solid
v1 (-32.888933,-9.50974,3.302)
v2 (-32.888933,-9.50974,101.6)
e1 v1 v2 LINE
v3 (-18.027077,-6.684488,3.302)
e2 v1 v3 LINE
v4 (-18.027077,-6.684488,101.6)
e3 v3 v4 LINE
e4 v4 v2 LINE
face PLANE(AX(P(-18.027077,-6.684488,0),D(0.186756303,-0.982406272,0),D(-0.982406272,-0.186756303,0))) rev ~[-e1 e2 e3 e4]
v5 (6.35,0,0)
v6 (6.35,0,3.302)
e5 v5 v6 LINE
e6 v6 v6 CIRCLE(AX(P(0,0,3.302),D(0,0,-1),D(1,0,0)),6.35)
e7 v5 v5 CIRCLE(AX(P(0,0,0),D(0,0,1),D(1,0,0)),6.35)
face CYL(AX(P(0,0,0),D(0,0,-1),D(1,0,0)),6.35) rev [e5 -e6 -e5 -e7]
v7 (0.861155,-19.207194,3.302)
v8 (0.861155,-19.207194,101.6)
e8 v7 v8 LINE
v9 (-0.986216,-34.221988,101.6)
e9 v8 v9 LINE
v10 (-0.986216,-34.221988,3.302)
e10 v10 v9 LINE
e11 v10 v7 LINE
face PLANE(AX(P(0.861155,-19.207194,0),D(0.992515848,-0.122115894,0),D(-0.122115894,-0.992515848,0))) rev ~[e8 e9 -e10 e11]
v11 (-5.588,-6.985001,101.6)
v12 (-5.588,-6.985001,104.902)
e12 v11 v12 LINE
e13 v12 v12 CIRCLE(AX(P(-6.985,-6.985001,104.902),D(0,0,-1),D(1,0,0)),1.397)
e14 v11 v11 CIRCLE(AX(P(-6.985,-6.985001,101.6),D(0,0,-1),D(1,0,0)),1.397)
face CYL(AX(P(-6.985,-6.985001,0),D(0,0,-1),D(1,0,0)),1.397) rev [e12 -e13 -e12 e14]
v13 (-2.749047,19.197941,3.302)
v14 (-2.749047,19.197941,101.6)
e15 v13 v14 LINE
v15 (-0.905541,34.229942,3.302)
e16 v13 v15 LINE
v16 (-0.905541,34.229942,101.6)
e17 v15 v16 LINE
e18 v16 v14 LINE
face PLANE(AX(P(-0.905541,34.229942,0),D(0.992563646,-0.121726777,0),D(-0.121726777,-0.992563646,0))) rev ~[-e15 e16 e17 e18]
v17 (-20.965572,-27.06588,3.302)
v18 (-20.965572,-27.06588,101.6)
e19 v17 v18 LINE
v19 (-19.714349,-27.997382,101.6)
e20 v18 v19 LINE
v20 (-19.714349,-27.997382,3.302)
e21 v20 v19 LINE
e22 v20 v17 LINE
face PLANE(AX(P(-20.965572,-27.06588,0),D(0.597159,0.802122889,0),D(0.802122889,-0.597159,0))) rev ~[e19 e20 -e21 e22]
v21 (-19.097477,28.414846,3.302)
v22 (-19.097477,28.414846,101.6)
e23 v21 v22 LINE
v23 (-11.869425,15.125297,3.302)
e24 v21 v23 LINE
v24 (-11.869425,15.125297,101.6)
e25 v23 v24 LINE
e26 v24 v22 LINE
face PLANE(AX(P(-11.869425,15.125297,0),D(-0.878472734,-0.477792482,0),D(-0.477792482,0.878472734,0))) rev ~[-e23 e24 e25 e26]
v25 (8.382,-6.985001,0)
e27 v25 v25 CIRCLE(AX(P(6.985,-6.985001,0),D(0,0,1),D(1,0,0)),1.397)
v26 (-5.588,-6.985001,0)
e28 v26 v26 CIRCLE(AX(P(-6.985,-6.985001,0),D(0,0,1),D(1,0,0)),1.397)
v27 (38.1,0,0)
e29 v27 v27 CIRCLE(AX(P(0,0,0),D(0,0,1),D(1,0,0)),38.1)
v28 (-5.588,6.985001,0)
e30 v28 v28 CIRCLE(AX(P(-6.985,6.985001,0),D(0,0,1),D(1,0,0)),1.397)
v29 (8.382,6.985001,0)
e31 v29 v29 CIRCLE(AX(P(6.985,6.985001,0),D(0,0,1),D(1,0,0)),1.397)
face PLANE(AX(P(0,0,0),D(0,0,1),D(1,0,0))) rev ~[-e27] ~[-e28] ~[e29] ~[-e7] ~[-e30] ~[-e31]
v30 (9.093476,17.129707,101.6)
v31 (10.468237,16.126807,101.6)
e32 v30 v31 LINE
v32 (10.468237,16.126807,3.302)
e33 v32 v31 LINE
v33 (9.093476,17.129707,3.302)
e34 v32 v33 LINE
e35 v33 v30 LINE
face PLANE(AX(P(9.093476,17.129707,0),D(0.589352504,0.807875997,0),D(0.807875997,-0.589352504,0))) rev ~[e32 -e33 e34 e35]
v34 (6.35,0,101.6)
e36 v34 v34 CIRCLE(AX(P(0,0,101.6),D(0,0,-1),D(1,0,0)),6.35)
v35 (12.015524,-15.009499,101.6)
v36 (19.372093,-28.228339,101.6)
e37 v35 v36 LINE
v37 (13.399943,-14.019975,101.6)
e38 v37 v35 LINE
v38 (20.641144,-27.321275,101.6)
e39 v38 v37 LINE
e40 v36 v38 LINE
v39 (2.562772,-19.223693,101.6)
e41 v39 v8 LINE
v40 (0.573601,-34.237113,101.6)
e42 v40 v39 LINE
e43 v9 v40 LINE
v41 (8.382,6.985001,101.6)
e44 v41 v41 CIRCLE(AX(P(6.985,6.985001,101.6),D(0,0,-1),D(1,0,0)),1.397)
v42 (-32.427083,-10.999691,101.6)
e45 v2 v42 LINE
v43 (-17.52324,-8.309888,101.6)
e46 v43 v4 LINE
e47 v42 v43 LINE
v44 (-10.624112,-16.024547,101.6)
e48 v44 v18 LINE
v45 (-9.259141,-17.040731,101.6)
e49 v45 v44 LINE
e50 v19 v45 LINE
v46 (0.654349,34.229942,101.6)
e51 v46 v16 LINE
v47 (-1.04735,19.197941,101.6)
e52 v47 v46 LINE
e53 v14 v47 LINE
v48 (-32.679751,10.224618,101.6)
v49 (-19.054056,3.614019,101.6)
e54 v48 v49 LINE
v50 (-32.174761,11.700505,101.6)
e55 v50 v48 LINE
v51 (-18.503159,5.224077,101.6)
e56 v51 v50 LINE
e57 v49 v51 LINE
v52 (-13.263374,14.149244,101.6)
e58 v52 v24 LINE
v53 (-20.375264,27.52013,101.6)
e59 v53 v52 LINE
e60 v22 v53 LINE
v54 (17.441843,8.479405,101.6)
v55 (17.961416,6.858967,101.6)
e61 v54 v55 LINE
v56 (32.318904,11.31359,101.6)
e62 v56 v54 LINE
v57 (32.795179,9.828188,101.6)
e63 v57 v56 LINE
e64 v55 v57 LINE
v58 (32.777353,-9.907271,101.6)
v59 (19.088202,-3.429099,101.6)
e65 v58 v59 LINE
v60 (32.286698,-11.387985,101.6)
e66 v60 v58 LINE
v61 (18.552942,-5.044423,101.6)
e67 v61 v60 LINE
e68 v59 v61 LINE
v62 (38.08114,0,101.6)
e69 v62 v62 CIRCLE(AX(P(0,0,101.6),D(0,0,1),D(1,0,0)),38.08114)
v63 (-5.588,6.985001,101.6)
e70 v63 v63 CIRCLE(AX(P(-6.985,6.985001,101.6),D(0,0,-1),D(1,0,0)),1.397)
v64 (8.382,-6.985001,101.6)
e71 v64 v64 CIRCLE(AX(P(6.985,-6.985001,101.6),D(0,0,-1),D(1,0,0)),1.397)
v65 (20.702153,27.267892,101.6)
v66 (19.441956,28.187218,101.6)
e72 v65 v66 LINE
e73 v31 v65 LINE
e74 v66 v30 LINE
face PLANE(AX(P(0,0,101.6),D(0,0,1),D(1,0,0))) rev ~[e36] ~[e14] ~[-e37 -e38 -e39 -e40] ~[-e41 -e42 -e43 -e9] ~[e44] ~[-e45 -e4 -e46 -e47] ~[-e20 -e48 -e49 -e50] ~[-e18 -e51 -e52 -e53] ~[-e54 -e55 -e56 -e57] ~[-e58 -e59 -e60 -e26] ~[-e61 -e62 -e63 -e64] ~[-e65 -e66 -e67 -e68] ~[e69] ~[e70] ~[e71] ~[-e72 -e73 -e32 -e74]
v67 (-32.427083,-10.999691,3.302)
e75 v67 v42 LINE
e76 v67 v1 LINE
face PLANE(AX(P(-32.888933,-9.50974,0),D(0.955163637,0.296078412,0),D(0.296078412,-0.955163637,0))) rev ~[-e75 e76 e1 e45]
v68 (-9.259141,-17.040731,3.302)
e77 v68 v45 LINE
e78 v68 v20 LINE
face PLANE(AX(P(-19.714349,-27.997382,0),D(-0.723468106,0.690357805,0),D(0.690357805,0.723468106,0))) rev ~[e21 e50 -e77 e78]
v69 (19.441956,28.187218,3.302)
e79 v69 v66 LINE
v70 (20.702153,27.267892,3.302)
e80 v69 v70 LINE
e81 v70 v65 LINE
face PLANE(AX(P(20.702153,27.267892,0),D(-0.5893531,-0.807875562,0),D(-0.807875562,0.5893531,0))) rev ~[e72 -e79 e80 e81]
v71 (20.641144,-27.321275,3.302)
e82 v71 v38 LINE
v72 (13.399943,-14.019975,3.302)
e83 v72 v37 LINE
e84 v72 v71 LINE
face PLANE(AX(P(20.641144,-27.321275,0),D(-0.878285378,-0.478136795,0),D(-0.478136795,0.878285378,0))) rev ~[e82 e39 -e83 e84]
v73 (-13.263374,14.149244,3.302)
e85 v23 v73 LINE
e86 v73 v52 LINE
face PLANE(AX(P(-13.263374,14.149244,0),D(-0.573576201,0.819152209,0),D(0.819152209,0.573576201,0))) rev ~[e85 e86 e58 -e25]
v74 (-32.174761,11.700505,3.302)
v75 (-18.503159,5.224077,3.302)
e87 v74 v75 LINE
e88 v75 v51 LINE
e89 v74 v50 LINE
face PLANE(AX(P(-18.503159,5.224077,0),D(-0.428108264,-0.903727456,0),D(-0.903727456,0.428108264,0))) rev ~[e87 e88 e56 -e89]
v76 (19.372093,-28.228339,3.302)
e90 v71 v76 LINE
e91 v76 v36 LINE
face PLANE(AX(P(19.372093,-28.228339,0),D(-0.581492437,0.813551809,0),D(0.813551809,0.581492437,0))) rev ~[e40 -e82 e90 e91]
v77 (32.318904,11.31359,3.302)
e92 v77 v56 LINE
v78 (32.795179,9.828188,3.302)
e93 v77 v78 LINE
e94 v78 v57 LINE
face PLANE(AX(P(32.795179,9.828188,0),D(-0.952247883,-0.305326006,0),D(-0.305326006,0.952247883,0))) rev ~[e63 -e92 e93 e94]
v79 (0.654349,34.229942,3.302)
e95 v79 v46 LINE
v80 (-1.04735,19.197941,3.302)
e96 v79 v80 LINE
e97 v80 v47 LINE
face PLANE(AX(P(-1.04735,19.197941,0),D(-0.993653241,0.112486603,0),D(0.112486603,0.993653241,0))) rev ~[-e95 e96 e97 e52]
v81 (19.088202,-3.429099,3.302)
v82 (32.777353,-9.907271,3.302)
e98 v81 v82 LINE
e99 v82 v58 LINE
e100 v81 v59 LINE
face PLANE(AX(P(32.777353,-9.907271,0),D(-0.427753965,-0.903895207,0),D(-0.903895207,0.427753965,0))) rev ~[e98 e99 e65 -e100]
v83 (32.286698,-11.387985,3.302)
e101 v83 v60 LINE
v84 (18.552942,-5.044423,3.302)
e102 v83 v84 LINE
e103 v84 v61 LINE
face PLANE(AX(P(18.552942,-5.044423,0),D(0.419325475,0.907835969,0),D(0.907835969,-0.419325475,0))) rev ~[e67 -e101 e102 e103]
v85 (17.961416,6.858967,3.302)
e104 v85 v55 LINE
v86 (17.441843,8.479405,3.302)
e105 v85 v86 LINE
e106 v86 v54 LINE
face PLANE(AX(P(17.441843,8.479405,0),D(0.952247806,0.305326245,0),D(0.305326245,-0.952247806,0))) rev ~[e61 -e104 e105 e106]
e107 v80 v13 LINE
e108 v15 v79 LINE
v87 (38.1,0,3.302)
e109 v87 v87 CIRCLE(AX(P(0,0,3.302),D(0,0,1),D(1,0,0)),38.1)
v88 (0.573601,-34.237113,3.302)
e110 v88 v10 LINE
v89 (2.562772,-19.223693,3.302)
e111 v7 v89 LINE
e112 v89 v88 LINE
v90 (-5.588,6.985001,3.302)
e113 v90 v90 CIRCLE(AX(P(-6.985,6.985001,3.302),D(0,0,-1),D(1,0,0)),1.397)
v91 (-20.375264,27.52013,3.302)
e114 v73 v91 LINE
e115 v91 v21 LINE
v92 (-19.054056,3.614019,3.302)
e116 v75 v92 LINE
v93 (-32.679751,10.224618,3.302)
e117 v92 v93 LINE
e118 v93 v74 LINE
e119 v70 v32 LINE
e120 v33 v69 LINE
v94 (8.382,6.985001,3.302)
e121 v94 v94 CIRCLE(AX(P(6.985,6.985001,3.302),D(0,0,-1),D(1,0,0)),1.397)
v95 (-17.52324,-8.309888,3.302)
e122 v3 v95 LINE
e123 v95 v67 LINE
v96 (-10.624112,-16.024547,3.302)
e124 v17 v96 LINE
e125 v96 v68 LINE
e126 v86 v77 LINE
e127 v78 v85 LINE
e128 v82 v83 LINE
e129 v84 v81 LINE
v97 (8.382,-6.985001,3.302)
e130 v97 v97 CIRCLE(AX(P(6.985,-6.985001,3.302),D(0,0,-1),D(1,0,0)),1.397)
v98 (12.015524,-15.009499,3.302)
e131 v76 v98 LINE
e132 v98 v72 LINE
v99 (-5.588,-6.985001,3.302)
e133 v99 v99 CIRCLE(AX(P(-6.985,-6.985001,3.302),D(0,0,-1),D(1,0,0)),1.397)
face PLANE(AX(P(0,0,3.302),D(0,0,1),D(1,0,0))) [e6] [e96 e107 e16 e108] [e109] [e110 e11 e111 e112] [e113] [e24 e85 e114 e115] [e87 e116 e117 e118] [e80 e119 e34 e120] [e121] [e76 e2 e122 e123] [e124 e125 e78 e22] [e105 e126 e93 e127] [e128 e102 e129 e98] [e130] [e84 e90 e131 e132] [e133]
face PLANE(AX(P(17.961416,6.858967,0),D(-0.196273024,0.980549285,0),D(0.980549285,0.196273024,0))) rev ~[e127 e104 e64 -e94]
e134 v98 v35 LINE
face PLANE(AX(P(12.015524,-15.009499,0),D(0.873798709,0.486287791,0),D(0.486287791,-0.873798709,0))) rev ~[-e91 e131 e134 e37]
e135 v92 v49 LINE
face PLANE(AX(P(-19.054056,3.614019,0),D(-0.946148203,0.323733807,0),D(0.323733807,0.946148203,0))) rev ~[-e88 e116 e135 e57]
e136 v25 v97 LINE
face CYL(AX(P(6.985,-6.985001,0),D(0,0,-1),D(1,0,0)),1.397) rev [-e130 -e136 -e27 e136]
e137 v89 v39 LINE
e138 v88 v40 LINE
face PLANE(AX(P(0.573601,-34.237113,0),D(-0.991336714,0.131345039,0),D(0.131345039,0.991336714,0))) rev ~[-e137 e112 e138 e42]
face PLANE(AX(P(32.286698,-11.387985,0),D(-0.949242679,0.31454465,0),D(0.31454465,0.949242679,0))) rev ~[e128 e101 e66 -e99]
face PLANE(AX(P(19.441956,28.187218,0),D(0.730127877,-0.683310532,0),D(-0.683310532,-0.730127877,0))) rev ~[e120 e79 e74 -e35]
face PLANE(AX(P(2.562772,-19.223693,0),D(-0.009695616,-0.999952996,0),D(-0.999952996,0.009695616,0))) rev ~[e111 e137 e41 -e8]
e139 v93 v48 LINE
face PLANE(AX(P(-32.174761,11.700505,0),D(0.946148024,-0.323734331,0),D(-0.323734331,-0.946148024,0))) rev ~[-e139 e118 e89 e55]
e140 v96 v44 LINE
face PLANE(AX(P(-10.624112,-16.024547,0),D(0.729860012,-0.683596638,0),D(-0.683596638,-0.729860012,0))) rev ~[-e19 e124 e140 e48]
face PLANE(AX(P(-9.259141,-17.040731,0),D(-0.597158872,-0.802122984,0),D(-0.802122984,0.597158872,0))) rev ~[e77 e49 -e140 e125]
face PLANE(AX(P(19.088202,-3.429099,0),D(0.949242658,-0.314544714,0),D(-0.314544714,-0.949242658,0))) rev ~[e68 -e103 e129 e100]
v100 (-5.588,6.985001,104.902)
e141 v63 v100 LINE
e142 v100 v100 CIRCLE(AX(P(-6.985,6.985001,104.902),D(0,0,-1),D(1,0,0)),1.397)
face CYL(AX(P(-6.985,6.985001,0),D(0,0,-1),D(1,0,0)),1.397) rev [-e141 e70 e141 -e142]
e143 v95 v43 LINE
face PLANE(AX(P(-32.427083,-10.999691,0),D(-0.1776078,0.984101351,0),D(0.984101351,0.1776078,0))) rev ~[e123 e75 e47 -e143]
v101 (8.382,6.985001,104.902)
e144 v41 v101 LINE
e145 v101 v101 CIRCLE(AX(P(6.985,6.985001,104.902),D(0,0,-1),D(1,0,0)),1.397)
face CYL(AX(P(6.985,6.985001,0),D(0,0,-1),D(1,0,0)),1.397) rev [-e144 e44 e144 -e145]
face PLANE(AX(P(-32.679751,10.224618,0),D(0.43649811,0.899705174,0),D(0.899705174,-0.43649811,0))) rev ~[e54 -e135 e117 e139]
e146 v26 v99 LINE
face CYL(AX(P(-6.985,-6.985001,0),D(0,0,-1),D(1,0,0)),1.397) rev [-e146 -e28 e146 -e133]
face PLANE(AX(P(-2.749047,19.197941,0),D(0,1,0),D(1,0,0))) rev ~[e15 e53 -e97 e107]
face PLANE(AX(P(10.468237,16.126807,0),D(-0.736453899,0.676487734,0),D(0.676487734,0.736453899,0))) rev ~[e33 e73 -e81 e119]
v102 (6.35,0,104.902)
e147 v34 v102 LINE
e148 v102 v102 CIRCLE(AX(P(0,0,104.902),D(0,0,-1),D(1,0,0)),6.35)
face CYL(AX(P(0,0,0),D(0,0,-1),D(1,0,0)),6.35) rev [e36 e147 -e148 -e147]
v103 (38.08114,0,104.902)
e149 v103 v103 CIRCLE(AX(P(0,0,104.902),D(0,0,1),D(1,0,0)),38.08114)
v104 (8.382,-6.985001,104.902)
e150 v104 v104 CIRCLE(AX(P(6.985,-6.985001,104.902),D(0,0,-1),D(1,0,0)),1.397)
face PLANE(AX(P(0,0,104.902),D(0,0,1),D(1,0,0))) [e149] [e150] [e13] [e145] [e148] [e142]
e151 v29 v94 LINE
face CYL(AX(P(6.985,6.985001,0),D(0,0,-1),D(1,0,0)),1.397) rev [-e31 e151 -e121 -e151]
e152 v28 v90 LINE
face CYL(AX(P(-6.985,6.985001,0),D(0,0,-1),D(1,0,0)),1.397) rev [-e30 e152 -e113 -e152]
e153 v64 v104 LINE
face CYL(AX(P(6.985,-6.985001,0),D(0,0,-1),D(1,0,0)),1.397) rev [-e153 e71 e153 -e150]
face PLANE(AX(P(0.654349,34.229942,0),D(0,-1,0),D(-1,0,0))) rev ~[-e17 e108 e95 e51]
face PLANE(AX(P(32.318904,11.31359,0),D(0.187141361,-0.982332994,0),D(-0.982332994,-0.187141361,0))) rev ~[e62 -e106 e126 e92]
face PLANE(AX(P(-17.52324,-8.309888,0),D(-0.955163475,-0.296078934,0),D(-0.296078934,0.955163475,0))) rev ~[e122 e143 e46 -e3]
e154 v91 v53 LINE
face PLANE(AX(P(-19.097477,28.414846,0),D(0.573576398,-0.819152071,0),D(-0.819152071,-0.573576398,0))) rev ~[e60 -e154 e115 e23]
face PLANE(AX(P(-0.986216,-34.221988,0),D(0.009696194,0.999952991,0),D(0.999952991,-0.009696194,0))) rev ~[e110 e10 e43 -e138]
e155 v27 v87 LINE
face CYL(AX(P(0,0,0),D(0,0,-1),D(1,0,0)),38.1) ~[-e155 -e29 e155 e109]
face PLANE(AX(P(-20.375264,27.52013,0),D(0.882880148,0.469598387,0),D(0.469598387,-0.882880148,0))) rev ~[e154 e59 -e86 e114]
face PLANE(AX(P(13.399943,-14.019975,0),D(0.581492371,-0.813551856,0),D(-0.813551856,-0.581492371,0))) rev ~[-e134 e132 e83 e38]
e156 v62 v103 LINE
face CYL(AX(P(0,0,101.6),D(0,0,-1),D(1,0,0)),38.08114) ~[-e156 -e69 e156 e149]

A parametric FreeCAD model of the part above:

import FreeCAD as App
import Part
import Sketcher

V = App.Vector
Q = App.Units.Quantity

doc = App.newDocument("Part")
body = doc.addObject("PartDesign::Body", "Body")

# Sketch on XY plane
sketch1 = body.newObject("Sketcher::SketchObject", "Sketch")
sketch1.AttachmentSupport = (doc.getObject("XY_Plane"), [""])
sketch1.MapMode = "FlatFace"
sketch1.addGeometry([
    Part.Circle(V(0, 0, 0), V(0, 0, 1), 38.1),  # 0
    Part.LineSegment(V(-9.259141, -17.040731, 0), V(-19.714349, -27.997382, 0)),  # 1
    Part.LineSegment(V(-19.714349, -27.997382, 0), V(-20.965572, -27.06588, 0)),  # 2
    Part.LineSegment(V(-20.965572, -27.06588, 0), V(-10.624112, -16.024547, 0)),  # 3
    Part.LineSegment(V(-10.624112, -16.024547, 0), V(-9.259141, -17.040731, 0)),  # 4
    Part.LineSegment(V(-17.52324, -8.309888, 0), V(-32.427083, -10.999691, 0)),  # 5
    Part.LineSegment(V(-32.427083, -10.999691, 0), V(-32.888933, -9.50974, 0)),  # 6
    Part.LineSegment(V(-32.888933, -9.50974, 0), V(-18.027077, -6.684488, 0)),  # 7
    Part.LineSegment(V(-18.027077, -6.684488, 0), V(-17.52324, -8.309888, 0)),  # 8
    Part.LineSegment(V(2.562772, -19.223693, 0), V(0.573601, -34.237113, 0)),  # 9
    Part.LineSegment(V(0.573601, -34.237113, 0), V(-0.986216, -34.221988, 0)),  # 10
    Part.LineSegment(V(-0.986216, -34.221988, 0), V(0.861155, -19.207194, 0)),  # 11
    Part.LineSegment(V(0.861155, -19.207194, 0), V(2.562772, -19.223693, 0)),  # 12
    Part.LineSegment(V(13.399943, -14.019975, 0), V(20.641144, -27.321275, 0)),  # 13
    Part.LineSegment(V(20.641144, -27.321275, 0), V(19.372093, -28.228339, 0)),  # 14
    Part.LineSegment(V(19.372093, -28.228339, 0), V(12.015524, -15.009499, 0)),  # 15
    Part.LineSegment(V(12.015524, -15.009499, 0), V(13.399943, -14.019975, 0)),  # 16
    Part.LineSegment(V(19.088202, -3.429099, 0), V(32.777353, -9.907271, 0)),  # 17
    Part.LineSegment(V(32.777353, -9.907271, 0), V(32.286698, -11.387985, 0)),  # 18
    Part.LineSegment(V(32.286698, -11.387985, 0), V(18.552942, -5.044423, 0)),  # 19
    Part.LineSegment(V(18.552942, -5.044423, 0), V(19.088202, -3.429099, 0)),  # 20
    Part.LineSegment(V(-19.054056, 3.614019, 0), V(-32.679751, 10.224618, 0)),  # 21
    Part.LineSegment(V(-32.679751, 10.224618, 0), V(-32.174761, 11.700505, 0)),  # 22
    Part.LineSegment(V(-32.174761, 11.700505, 0), V(-18.503159, 5.224077, 0)),  # 23
    Part.LineSegment(V(-18.503159, 5.224077, 0), V(-19.054056, 3.614019, 0)),  # 24
    Part.LineSegment(V(-13.263374, 14.149244, 0), V(-20.375264, 27.52013, 0)),  # 25
    Part.LineSegment(V(-20.375264, 27.52013, 0), V(-19.097477, 28.414846, 0)),  # 26
    Part.LineSegment(V(-19.097477, 28.414846, 0), V(-11.869425, 15.125297, 0)),  # 27
    Part.LineSegment(V(-11.869425, 15.125297, 0), V(-13.263374, 14.149244, 0)),  # 28
    Part.LineSegment(V(-1.04735, 19.197941, 0), V(-2.749047, 19.197941, 0)),  # 29
    Part.LineSegment(V(-2.749047, 19.197941, 0), V(-0.905541, 34.229942, 0)),  # 30
    Part.LineSegment(V(-0.905541, 34.229942, 0), V(0.654349, 34.229942, 0)),  # 31
    Part.LineSegment(V(0.654349, 34.229942, 0), V(-1.04735, 19.197941, 0)),  # 32
    Part.Circle(V(0, 0, 0), V(0, 0, 1), 3.175),  # 33
    Part.LineSegment(V(17.441843, 8.479405, 0), V(32.318904, 11.31359, 0)),  # 34
    Part.LineSegment(V(32.318904, 11.31359, 0), V(32.795179, 9.828188, 0)),  # 35
    Part.LineSegment(V(32.795179, 9.828188, 0), V(17.961416, 6.858967, 0)),  # 36
    Part.LineSegment(V(17.961416, 6.858967, 0), V(17.441843, 8.479405, 0)),  # 37
    Part.LineSegment(V(9.093476, 17.129707, 0), V(19.441956, 28.187218, 0)),  # 38
    Part.LineSegment(V(19.441956, 28.187218, 0), V(20.702153, 27.267892, 0)),  # 39
    Part.LineSegment(V(20.702153, 27.267892, 0), V(10.468237, 16.126807, 0)),  # 40
    Part.LineSegment(V(10.468237, 16.126807, 0), V(9.093476, 17.129707, 0)),  # 41
], False)
sketch1.addConstraint([
    Sketcher.Constraint("Coincident", 1, 2, 2, 1),
    Sketcher.Constraint("Coincident", 2, 2, 3, 1),
    Sketcher.Constraint("Coincident", 3, 2, 4, 1),
    Sketcher.Constraint("Coincident", 4, 2, 1, 1),
    Sketcher.Constraint("Coincident", 5, 2, 6, 1),
    Sketcher.Constraint("Coincident", 6, 2, 7, 1),
    Sketcher.Constraint("Coincident", 7, 2, 8, 1),
    Sketcher.Constraint("Coincident", 8, 2, 5, 1),
    Sketcher.Constraint("Coincident", 9, 2, 10, 1),
    Sketcher.Constraint("Coincident", 10, 2, 11, 1),
    Sketcher.Constraint("Coincident", 11, 2, 12, 1),
    Sketcher.Constraint("Coincident", 12, 2, 9, 1),
    Sketcher.Constraint("Coincident", 13, 2, 14, 1),
    Sketcher.Constraint("Coincident", 14, 2, 15, 1),
    Sketcher.Constraint("Coincident", 15, 2, 16, 1),
    Sketcher.Constraint("Coincident", 16, 2, 13, 1),
    Sketcher.Constraint("Coincident", 17, 2, 18, 1),
    Sketcher.Constraint("Coincident", 18, 2, 19, 1),
    Sketcher.Constraint("Coincident", 19, 2, 20, 1),
    Sketcher.Constraint("Coincident", 20, 2, 17, 1),
    Sketcher.Constraint("Coincident", 21, 2, 22, 1),
    Sketcher.Constraint("Coincident", 22, 2, 23, 1),
    Sketcher.Constraint("Coincident", 23, 2, 24, 1),
    Sketcher.Constraint("Coincident", 24, 2, 21, 1),
    Sketcher.Constraint("Coincident", 25, 2, 26, 1),
    Sketcher.Constraint("Coincident", 26, 2, 27, 1),
    Sketcher.Constraint("Coincident", 27, 2, 28, 1),
    Sketcher.Constraint("Coincident", 28, 2, 25, 1),
    Sketcher.Constraint("Coincident", 29, 2, 30, 1),
    Sketcher.Constraint("Coincident", 30, 2, 31, 1),
    Sketcher.Constraint("Coincident", 31, 2, 32, 1),
    Sketcher.Constraint("Coincident", 32, 2, 29, 1),
    Sketcher.Constraint("Coincident", 34, 2, 35, 1),
    Sketcher.Constraint("Coincident", 35, 2, 36, 1),
    Sketcher.Constraint("Coincident", 36, 2, 37, 1),
    Sketcher.Constraint("Coincident", 37, 2, 34, 1),
    Sketcher.Constraint("Coincident", 38, 2, 39, 1),
    Sketcher.Constraint("Coincident", 39, 2, 40, 1),
    Sketcher.Constraint("Coincident", 40, 2, 41, 1),
    Sketcher.Constraint("Coincident", 41, 2, 38, 1),
    Sketcher.Constraint("Horizontal", 29),
    Sketcher.Constraint("Horizontal", 31),
    Sketcher.Constraint("Coincident", 0, 3, -1, 1),
    Sketcher.Constraint("Coincident", 33, 3, -1, 1),
    Sketcher.Constraint("Diameter", 0, Q("3 in")),
    Sketcher.Constraint("Diameter", 33, Q("0.25 in")),
    Sketcher.Constraint("DistanceX", 27, 2, -1, 1, Q("0.4673002 in")),
    Sketcher.Constraint("DistanceY", 24, 2, 27, 2, Q("0.4531999 in")),
    Sketcher.Constraint("Distance", 8, 1.701698),
    Sketcher.Constraint("Distance", 41, 1.701698),
    Sketcher.Constraint("DistanceX", 31, 1, 31, 2, 1.55989),
    Sketcher.Constraint("DistanceX", -1, 1, 9, 2, 0.573601),
    Sketcher.Constraint("DistanceY", 15, 2, -1, 1, 15.009499),
    Sketcher.Constraint("DistanceX", -1, 1, 20, 2, 19.088202),
    Sketcher.Constraint("DistanceY", 20, 2, -1, 1, 3.429099),
    Sketcher.Constraint("DistanceY", 8, 2, 7, 2, 1.6254),
    Sketcher.Constraint("DistanceX", 8, 2, 4, 2, 8.264099),
    Sketcher.Constraint("DistanceY", 12, 2, 11, 2, 0.016499),
    Sketcher.Constraint("DistanceX", 16, 2, 13, 2, 7.241201),
    Sketcher.Constraint("DistanceY", 13, 2, 16, 2, 13.3013),
    Sketcher.Constraint("DistanceX", 16, 2, 19, 2, 5.152999),
    Sketcher.Constraint("DistanceX", 22, 2, 23, 2, 13.671602),
    Sketcher.Constraint("DistanceY", 24, 2, 21, 2, 6.610599),
    Sketcher.Constraint("DistanceY", 29, 2, 30, 2, 15.032001),
    Sketcher.Constraint("DistanceY", 28, 2, 30, 2, 20.080698),
    Sketcher.Constraint("DistanceX", 32, 2, 31, 2, 1.701699),
    Sketcher.Constraint("DistanceY", 35, 2, 34, 2, 1.485402),
    Sketcher.Constraint("DistanceX", 37, 2, 19, 2, 1.111099),
    Sketcher.Constraint("DistanceY", 37, 2, 40, 2, 7.647402),
    Sketcher.Constraint("DistanceY", 40, 2, 41, 2, 1.0029),
    Sketcher.Constraint("Distance", 1, 15.144622),
    Sketcher.Constraint("Distance", 2, 1.559889),
    Sketcher.Constraint("Distance", 6, 1.559891),
    Sketcher.Constraint("Distance", 10, 1.55989),
    Sketcher.Constraint("Distance", 14, 1.55989),
    Sketcher.Constraint("Distance", 17, 15.144622),
    Sketcher.Constraint("Distance", 18, 1.55989),
    Sketcher.Constraint("Distance", 22, 1.55989),
    Sketcher.Constraint("Distance", 25, 15.144622),
    Sketcher.Constraint("Distance", 26, 1.55989),
    Sketcher.Constraint("Distance", 30, 15.144622),
    Sketcher.Constraint("Distance", 34, 15.144621),
    Sketcher.Constraint("Distance", 35, 1.55989),
    Sketcher.Constraint("Distance", 39, 1.55989),
    Sketcher.Constraint("DistanceX", 1, 2, -1, 1, 19.714349),
    Sketcher.Constraint("DistanceY", 2, 2, -1, 1, 27.06588),
    Sketcher.Constraint("DistanceX", 4, 2, -1, 1, 9.259141),
    Sketcher.Constraint("DistanceY", 4, 2, -1, 1, 17.040731),
    Sketcher.Constraint("DistanceY", 5, 2, -1, 1, 10.999691),
    Sketcher.Constraint("DistanceY", 6, 2, -1, 1, 9.50974),
    Sketcher.Constraint("DistanceY", 8, 2, -1, 1, 8.309888),
    Sketcher.Constraint("DistanceY", 10, 2, -1, 1, 34.221988),
    Sketcher.Constraint("DistanceX", -1, 1, 12, 2, 2.562772),
    Sketcher.Constraint("DistanceY", 14, 2, -1, 1, 28.228339),
    Sketcher.Constraint("DistanceY", 17, 2, -1, 1, 9.907271),
    Sketcher.Constraint("DistanceX", 21, 2, -1, 1, 32.679751),
    Sketcher.Constraint("DistanceX", 22, 2, -1, 1, 32.174761),
    Sketcher.Constraint("DistanceY", -1, 1, 24, 2, 3.614019),
    Sketcher.Constraint("DistanceY", -1, 1, 25, 2, 27.52013),
    Sketcher.Constraint("DistanceY", -1, 1, 29, 2, 19.197941),
    Sketcher.Constraint("DistanceX", 30, 2, -1, 1, 0.905541),
    Sketcher.Constraint("DistanceY", -1, 1, 34, 2, 11.31359),
    Sketcher.Constraint("DistanceX", -1, 1, 35, 2, 32.795179),
    Sketcher.Constraint("DistanceY", -1, 1, 38, 2, 28.187218),
    Sketcher.Constraint("DistanceY", -1, 1, 39, 2, 27.267892),
    Sketcher.Constraint("DistanceX", 2, 2, 3, 2, 10.34146),
    Sketcher.Constraint("DistanceX", 5, 2, 2, 2, 11.461511),
    Sketcher.Constraint("DistanceY", 3, 2, 7, 2, 9.340059),
    Sketcher.Constraint("DistanceY", 9, 2, 4, 2, 17.196382),
    Sketcher.Constraint("DistanceY", 9, 2, 11, 2, 15.029919),
    Sketcher.Constraint("DistanceX", 10, 2, 11, 2, 1.847371),
    Sketcher.Constraint("DistanceY", 13, 2, 12, 2, 8.097582),
    Sketcher.Constraint("DistanceX", 11, 2, 13, 2, 19.779989),
    Sketcher.Constraint("DistanceX", 11, 2, 15, 2, 11.154369),
    Sketcher.Constraint("DistanceY", 16, 2, 18, 2, 2.63199),
    Sketcher.Constraint("DistanceY", 23, 2, 21, 2, 5.000541),
    Sketcher.Constraint("DistanceX", 24, 2, 7, 2, 1.026979),
    Sketcher.Constraint("DistanceX", 25, 2, 24, 2, 1.321208),
    Sketcher.Constraint("DistanceY", 22, 2, 26, 2, 16.714341),
    Sketcher.Constraint("DistanceY", 19, 2, 35, 2, 14.872611),
    Sketcher.Constraint("DistanceY", 19, 2, 36, 2, 11.90339),
    Sketcher.Constraint("DistanceX", 36, 2, 34, 2, 14.357488),
    Sketcher.Constraint("DistanceX", 38, 2, 34, 2, 12.876948),
    Sketcher.Constraint("DistanceX", 40, 2, 36, 2, 7.493179),
])
pad1 = body.newObject("PartDesign::Pad", "Pad")
pad1.Profile = sketch1
pad1.Length = Q("0.13 in")

# Sketch on XY plane
sketch2 = body.newObject("Sketcher::SketchObject", "Sketch001")
sketch2.AttachmentSupport = (doc.getObject("XY_Plane"), [""])
sketch2.MapMode = "FlatFace"
sketch2.addGeometry([
    Part.LineSegment(V(-18.503159, 5.224077, 0), V(-32.174761, 11.700505, 0)),  # 0
    Part.LineSegment(V(-32.174761, 11.700505, 0), V(-32.679751, 10.224618, 0)),  # 1
    Part.LineSegment(V(-32.679751, 10.224618, 0), V(-19.054056, 3.614019, 0)),  # 2
    Part.LineSegment(V(-19.054056, 3.614019, 0), V(-18.503159, 5.224077, 0)),  # 3
    Part.LineSegment(V(-18.027077, -6.684488, 0), V(-32.888933, -9.50974, 0)),  # 4
    Part.LineSegment(V(-32.888933, -9.50974, 0), V(-32.427083, -10.999691, 0)),  # 5
    Part.LineSegment(V(-32.427083, -10.999691, 0), V(-17.52324, -8.309888, 0)),  # 6
    Part.LineSegment(V(-17.52324, -8.309888, 0), V(-18.027077, -6.684488, 0)),  # 7
    Part.LineSegment(V(-10.624112, -16.024547, 0), V(-20.965572, -27.06588, 0)),  # 8
    Part.LineSegment(V(-20.965572, -27.06588, 0), V(-19.714349, -27.997382, 0)),  # 9
    Part.LineSegment(V(-19.714349, -27.997382, 0), V(-9.259141, -17.040731, 0)),  # 10
    Part.LineSegment(V(-9.259141, -17.040731, 0), V(-10.624112, -16.024547, 0)),  # 11
    Part.LineSegment(V(0.861155, -19.207194, 0), V(-0.986216, -34.221988, 0)),  # 12
    Part.LineSegment(V(-0.986216, -34.221988, 0), V(0.573601, -34.237113, 0)),  # 13
    Part.LineSegment(V(0.573601, -34.237113, 0), V(2.562772, -19.223693, 0)),  # 14
    Part.LineSegment(V(2.562772, -19.223693, 0), V(0.861155, -19.207194, 0)),  # 15
    Part.LineSegment(V(12.015524, -15.009499, 0), V(19.372093, -28.228339, 0)),  # 16
    Part.LineSegment(V(19.372093, -28.228339, 0), V(20.641144, -27.321275, 0)),  # 17
    Part.LineSegment(V(20.641144, -27.321275, 0), V(13.399943, -14.019975, 0)),  # 18
    Part.LineSegment(V(13.399943, -14.019975, 0), V(12.015524, -15.009499, 0)),  # 19
    Part.LineSegment(V(18.552942, -5.044423, 0), V(32.286698, -11.387985, 0)),  # 20
    Part.LineSegment(V(32.286698, -11.387985, 0), V(32.777353, -9.907271, 0)),  # 21
    Part.LineSegment(V(32.777353, -9.907271, 0), V(19.088202, -3.429099, 0)),  # 22
    Part.LineSegment(V(19.088202, -3.429099, 0), V(18.552942, -5.044423, 0)),  # 23
    Part.LineSegment(V(17.961416, 6.858967, 0), V(32.795179, 9.828188, 0)),  # 24
    Part.LineSegment(V(32.795179, 9.828188, 0), V(32.318904, 11.31359, 0)),  # 25
    Part.LineSegment(V(32.318904, 11.31359, 0), V(17.441843, 8.479405, 0)),  # 26
    Part.LineSegment(V(17.441843, 8.479405, 0), V(17.961416, 6.858967, 0)),  # 27
    Part.LineSegment(V(10.468237, 16.126807, 0), V(20.702153, 27.267892, 0)),  # 28
    Part.LineSegment(V(20.702153, 27.267892, 0), V(19.441956, 28.187218, 0)),  # 29
    Part.LineSegment(V(19.441956, 28.187218, 0), V(9.093476, 17.129707, 0)),  # 30
    Part.LineSegment(V(9.093476, 17.129707, 0), V(10.468237, 16.126807, 0)),  # 31
    Part.LineSegment(V(0.654349, 34.229942, 0), V(-0.905541, 34.229942, 0)),  # 32
    Part.LineSegment(V(-0.905541, 34.229942, 0), V(-2.749047, 19.197941, 0)),  # 33
    Part.LineSegment(V(-2.749047, 19.197941, 0), V(-1.04735, 19.197941, 0)),  # 34
    Part.LineSegment(V(-1.04735, 19.197941, 0), V(0.654349, 34.229942, 0)),  # 35
    Part.LineSegment(V(-11.869425, 15.125297, 0), V(-19.097477, 28.414846, 0)),  # 36
    Part.LineSegment(V(-19.097477, 28.414846, 0), V(-20.375264, 27.52013, 0)),  # 37
    Part.LineSegment(V(-20.375264, 27.52013, 0), V(-13.263374, 14.149244, 0)),  # 38
    Part.LineSegment(V(-13.263374, 14.149244, 0), V(-11.869425, 15.125297, 0)),  # 39
], False)
sketch2.addConstraint([
    Sketcher.Constraint("Coincident", 0, 2, 1, 1),
    Sketcher.Constraint("Coincident", 1, 2, 2, 1),
    Sketcher.Constraint("Coincident", 2, 2, 3, 1),
    Sketcher.Constraint("Coincident", 3, 2, 0, 1),
    Sketcher.Constraint("Coincident", 4, 2, 5, 1),
    Sketcher.Constraint("Coincident", 5, 2, 6, 1),
    Sketcher.Constraint("Coincident", 6, 2, 7, 1),
    Sketcher.Constraint("Coincident", 7, 2, 4, 1),
    Sketcher.Constraint("Coincident", 8, 2, 9, 1),
    Sketcher.Constraint("Coincident", 9, 2, 10, 1),
    Sketcher.Constraint("Coincident", 10, 2, 11, 1),
    Sketcher.Constraint("Coincident", 11, 2, 8, 1),
    Sketcher.Constraint("Coincident", 12, 2, 13, 1),
    Sketcher.Constraint("Coincident", 13, 2, 14, 1),
    Sketcher.Constraint("Coincident", 14, 2, 15, 1),
    Sketcher.Constraint("Coincident", 15, 2, 12, 1),
    Sketcher.Constraint("Coincident", 16, 2, 17, 1),
    Sketcher.Constraint("Coincident", 17, 2, 18, 1),
    Sketcher.Constraint("Coincident", 18, 2, 19, 1),
    Sketcher.Constraint("Coincident", 19, 2, 16, 1),
    Sketcher.Constraint("Coincident", 20, 2, 21, 1),
    Sketcher.Constraint("Coincident", 21, 2, 22, 1),
    Sketcher.Constraint("Coincident", 22, 2, 23, 1),
    Sketcher.Constraint("Coincident", 23, 2, 20, 1),
    Sketcher.Constraint("Coincident", 24, 2, 25, 1),
    Sketcher.Constraint("Coincident", 25, 2, 26, 1),
    Sketcher.Constraint("Coincident", 26, 2, 27, 1),
    Sketcher.Constraint("Coincident", 27, 2, 24, 1),
    Sketcher.Constraint("Coincident", 28, 2, 29, 1),
    Sketcher.Constraint("Coincident", 29, 2, 30, 1),
    Sketcher.Constraint("Coincident", 30, 2, 31, 1),
    Sketcher.Constraint("Coincident", 31, 2, 28, 1),
    Sketcher.Constraint("Coincident", 32, 2, 33, 1),
    Sketcher.Constraint("Coincident", 33, 2, 34, 1),
    Sketcher.Constraint("Coincident", 34, 2, 35, 1),
    Sketcher.Constraint("Coincident", 35, 2, 32, 1),
    Sketcher.Constraint("Coincident", 36, 2, 37, 1),
    Sketcher.Constraint("Coincident", 37, 2, 38, 1),
    Sketcher.Constraint("Coincident", 38, 2, 39, 1),
    Sketcher.Constraint("Coincident", 39, 2, 36, 1),
    Sketcher.Constraint("Horizontal", 32),
    Sketcher.Constraint("Horizontal", 34),
    Sketcher.Constraint("DistanceX", 39, 2, -1, 1, Q("0.4673002 in")),
    Sketcher.Constraint("DistanceY", 2, 2, 39, 2, Q("0.4531999 in")),
    Sketcher.Constraint("Distance", 7, 1.701698),
    Sketcher.Constraint("Distance", 31, 1.701698),
    Sketcher.Constraint("DistanceX", 32, 2, 32, 1, 1.55989),
    Sketcher.Constraint("DistanceX", -1, 1, 13, 2, 0.573601),
    Sketcher.Constraint("DistanceY", 19, 2, -1, 1, 15.009499),
    Sketcher.Constraint("DistanceX", -1, 1, 22, 2, 19.088202),
    Sketcher.Constraint("DistanceY", 22, 2, -1, 1, 3.429099),
    Sketcher.Constraint("DistanceY", 2, 2, 1, 2, 6.610599),
    Sketcher.Constraint("DistanceX", 0, 2, 3, 2, 13.671602),
    Sketcher.Constraint("DistanceY", 6, 2, 7, 2, 1.6254),
    Sketcher.Constraint("DistanceY", 8, 2, 2, 2, 30.679899),
    Sketcher.Constraint("DistanceX", 6, 2, 10, 2, 8.264099),
    Sketcher.Constraint("DistanceY", 12, 2, 6, 2, 25.9121),
    Sketcher.Constraint("DistanceY", 14, 2, 15, 2, 0.016499),
    Sketcher.Constraint("DistanceX", 18, 2, 17, 2, 7.241201),
    Sketcher.Constraint("DistanceY", 17, 2, 18, 2, 13.3013),
    Sketcher.Constraint("DistanceX", 18, 2, 23, 2, 5.152999),
    Sketcher.Constraint("DistanceY", 24, 2, 25, 2, 1.485402),
    Sketcher.Constraint("DistanceX", 26, 2, 23, 2, 1.111099),
    Sketcher.Constraint("DistanceY", 31, 2, 30, 2, 1.0029),
    Sketcher.Constraint("DistanceY", 26, 2, 31, 2, 7.647402),
    Sketcher.Constraint("DistanceY", 33, 2, 32, 2, 15.032001),
    Sketcher.Constraint("DistanceX", 34, 2, 35, 2, 1.701699),
    Sketcher.Constraint("Distance", 1, 1.55989),
    Sketcher.Constraint("Distance", 5, 1.559891),
    Sketcher.Constraint("Distance", 9, 1.559889),
    Sketcher.Constraint("Distance", 10, 15.144622),
    Sketcher.Constraint("Distance", 13, 1.55989),
    Sketcher.Constraint("Distance", 17, 1.55989),
    Sketcher.Constraint("Distance", 21, 1.55989),
    Sketcher.Constraint("Distance", 22, 15.144622),
    Sketcher.Constraint("Distance", 25, 1.55989),
    Sketcher.Constraint("Distance", 26, 15.144621),
    Sketcher.Constraint("Distance", 29, 1.55989),
    Sketcher.Constraint("Distance", 33, 15.144622),
    Sketcher.Constraint("Distance", 37, 1.55989),
    Sketcher.Constraint("Distance", 38, 15.144622),
    Sketcher.Constraint("DistanceX", 0, 2, -1, 1, 32.174761),
    Sketcher.Constraint("DistanceX", 1, 2, -1, 1, 32.679751),
    Sketcher.Constraint("DistanceY", -1, 1, 2, 2, 3.614019),
    Sketcher.Constraint("DistanceY", 4, 2, -1, 1, 9.50974),
    Sketcher.Constraint("DistanceY", 5, 2, -1, 1, 10.999691),
    Sketcher.Constraint("DistanceX", 6, 2, -1, 1, 17.52324),
    Sketcher.Constraint("DistanceY", 6, 2, -1, 1, 8.309888),
    Sketcher.Constraint("DistanceX", 9, 2, -1, 1, 19.714349),
    Sketcher.Constraint("DistanceY", 10, 2, -1, 1, 17.040731),
    Sketcher.Constraint("DistanceX", -1, 1, 14, 2, 2.562772),
    Sketcher.Constraint("DistanceY", 16, 2, -1, 1, 28.228339),
    Sketcher.Constraint("DistanceY", 21, 2, -1, 1, 9.907271),
    Sketcher.Constraint("DistanceX", -1, 1, 24, 2, 32.795179),
    Sketcher.Constraint("DistanceY", -1, 1, 24, 2, 9.828188),
    Sketcher.Constraint("DistanceY", -1, 1, 28, 2, 27.267892),
    Sketcher.Constraint("DistanceY", -1, 1, 29, 2, 28.187218),
    Sketcher.Constraint("DistanceX", 32, 2, -1, 1, 0.905541),
    Sketcher.Constraint("DistanceY", -1, 1, 33, 2, 19.197941),
    Sketcher.Constraint("DistanceY", -1, 1, 37, 2, 27.52013),
    Sketcher.Constraint("DistanceY", 2, 2, 3, 2, 1.610058),
    Sketcher.Constraint("DistanceX", 4, 2, 1, 2, 0.209182),
    Sketcher.Constraint("DistanceX", 2, 2, 7, 2, 1.026979),
    Sketcher.Constraint("DistanceX", 11, 2, 10, 2, 1.364971),
    Sketcher.Constraint("DistanceY", 11, 2, 6, 2, 7.714659),
    Sketcher.Constraint("DistanceY", 13, 2, 10, 2, 17.196382),
    Sketcher.Constraint("DistanceY", 14, 2, 10, 2, 2.182962),
    Sketcher.Constraint("DistanceX", 12, 2, 15, 2, 1.847371),
    Sketcher.Constraint("DistanceX", 14, 2, 16, 2, 16.809321),
    Sketcher.Constraint("DistanceX", 16, 2, 17, 2, 1.269051),
    Sketcher.Constraint("DistanceX", 19, 2, 18, 2, 1.384419),
    Sketcher.Constraint("DistanceY", 18, 2, 20, 2, 2.63199),
    Sketcher.Constraint("DistanceY", 23, 2, 24, 2, 14.872611),
    Sketcher.Constraint("DistanceY", 23, 2, 27, 2, 11.90339),
    Sketcher.Constraint("DistanceX", 27, 2, 25, 2, 14.357488),
    Sketcher.Constraint("DistanceX", 26, 2, 28, 2, 3.26031),
    Sketcher.Constraint("DistanceX", 30, 2, 27, 2, 8.86794),
    Sketcher.Constraint("DistanceX", 36, 2, 33, 2, 16.34843),
    Sketcher.Constraint("DistanceY", 0, 2, 36, 2, 16.714341),
    Sketcher.Constraint("DistanceX", 2, 2, 38, 2, 5.790682),
])
pad2 = body.newObject("PartDesign::Pad", "Pad001")
pad2.Profile = sketch2
pad2.Length = Q("4 in")

# Sketch on XY plane
sketch3 = body.newObject("Sketcher::SketchObject", "Sketch002")
sketch3.AttachmentSupport = (doc.getObject("XY_Plane"), [""])
sketch3.MapMode = "FlatFace"
sketch3.AttachmentOffset = App.Placement(V(0, 0, 4 * 25.4), App.Rotation())
sketch3.addGeometry([
    Part.Circle(V(0, 0, 0), V(0, 0, 1), 38.08114),
    Part.Circle(V(0, 0, 0), V(0, 0, 1), 3.175),
], False)
sketch3.addConstraint([
    Sketcher.Constraint("Coincident", 0, 3, -1, 1),
    Sketcher.Constraint("Coincident", 1, 3, -1, 1),
    Sketcher.Constraint("Diameter", 1, Q("0.25 in")),
    Sketcher.Constraint("Diameter", 0, 76.16228),
])
pad3 = body.newObject("PartDesign::Pad", "Pad002")
pad3.Profile = sketch3
pad3.Length = Q("0.13 in")

# Sketch on XY plane
sketch4 = body.newObject("Sketcher::SketchObject", "Sketch003")
sketch4.AttachmentSupport = (doc.getObject("XY_Plane"), [""])
sketch4.MapMode = "FlatFace"
sketch4.addGeometry([
    Part.Circle(V(6.985, -6.985001, 0), V(0, 0, 1), 1.397),  # 0
    Part.Circle(V(-6.985, -6.985001, 0), V(0, 0, 1), 1.397),  # 1
    Part.Circle(V(-6.985, 6.985001, 0), V(0, 0, 1), 1.397),  # 2
    Part.Circle(V(6.985, 6.985001, 0), V(0, 0, 1), 1.397),  # 3
    Part.Circle(V(0, 0, 0), V(0, 0, 1), 6.35),  # 4
], False)
sketch4.addConstraint([
    Sketcher.Constraint("Coincident", 4, 3, -1, 1),
    Sketcher.Constraint("Equal", 0, 1),
    Sketcher.Constraint("Equal", 1, 2),
    Sketcher.Constraint("Equal", 2, 3),
    Sketcher.Constraint("Symmetric", 0, 3, 2, 3, -1, 1),
    Sketcher.Constraint("Symmetric", 1, 3, 3, 3, -1, 1),
    Sketcher.Constraint("Symmetric", 0, 3, 1, 3, -2),
    Sketcher.Constraint("Diameter", 4, Q("0.5 in")),
    Sketcher.Constraint("Diameter", 0, Q("0.11 in")),
    Sketcher.Constraint("DistanceX", 1, 3, 0, 3, Q("0.55 in")),
    Sketcher.Constraint("DistanceY", 1, 3, 2, 3, Q("0.5500001 in")),
])
pocket1 = body.newObject("PartDesign::Pocket", "Pocket")
pocket1.Profile = sketch4
pocket1.Length = Q("5.39 in")
pocket1.Reversed = True

doc.recompute()
